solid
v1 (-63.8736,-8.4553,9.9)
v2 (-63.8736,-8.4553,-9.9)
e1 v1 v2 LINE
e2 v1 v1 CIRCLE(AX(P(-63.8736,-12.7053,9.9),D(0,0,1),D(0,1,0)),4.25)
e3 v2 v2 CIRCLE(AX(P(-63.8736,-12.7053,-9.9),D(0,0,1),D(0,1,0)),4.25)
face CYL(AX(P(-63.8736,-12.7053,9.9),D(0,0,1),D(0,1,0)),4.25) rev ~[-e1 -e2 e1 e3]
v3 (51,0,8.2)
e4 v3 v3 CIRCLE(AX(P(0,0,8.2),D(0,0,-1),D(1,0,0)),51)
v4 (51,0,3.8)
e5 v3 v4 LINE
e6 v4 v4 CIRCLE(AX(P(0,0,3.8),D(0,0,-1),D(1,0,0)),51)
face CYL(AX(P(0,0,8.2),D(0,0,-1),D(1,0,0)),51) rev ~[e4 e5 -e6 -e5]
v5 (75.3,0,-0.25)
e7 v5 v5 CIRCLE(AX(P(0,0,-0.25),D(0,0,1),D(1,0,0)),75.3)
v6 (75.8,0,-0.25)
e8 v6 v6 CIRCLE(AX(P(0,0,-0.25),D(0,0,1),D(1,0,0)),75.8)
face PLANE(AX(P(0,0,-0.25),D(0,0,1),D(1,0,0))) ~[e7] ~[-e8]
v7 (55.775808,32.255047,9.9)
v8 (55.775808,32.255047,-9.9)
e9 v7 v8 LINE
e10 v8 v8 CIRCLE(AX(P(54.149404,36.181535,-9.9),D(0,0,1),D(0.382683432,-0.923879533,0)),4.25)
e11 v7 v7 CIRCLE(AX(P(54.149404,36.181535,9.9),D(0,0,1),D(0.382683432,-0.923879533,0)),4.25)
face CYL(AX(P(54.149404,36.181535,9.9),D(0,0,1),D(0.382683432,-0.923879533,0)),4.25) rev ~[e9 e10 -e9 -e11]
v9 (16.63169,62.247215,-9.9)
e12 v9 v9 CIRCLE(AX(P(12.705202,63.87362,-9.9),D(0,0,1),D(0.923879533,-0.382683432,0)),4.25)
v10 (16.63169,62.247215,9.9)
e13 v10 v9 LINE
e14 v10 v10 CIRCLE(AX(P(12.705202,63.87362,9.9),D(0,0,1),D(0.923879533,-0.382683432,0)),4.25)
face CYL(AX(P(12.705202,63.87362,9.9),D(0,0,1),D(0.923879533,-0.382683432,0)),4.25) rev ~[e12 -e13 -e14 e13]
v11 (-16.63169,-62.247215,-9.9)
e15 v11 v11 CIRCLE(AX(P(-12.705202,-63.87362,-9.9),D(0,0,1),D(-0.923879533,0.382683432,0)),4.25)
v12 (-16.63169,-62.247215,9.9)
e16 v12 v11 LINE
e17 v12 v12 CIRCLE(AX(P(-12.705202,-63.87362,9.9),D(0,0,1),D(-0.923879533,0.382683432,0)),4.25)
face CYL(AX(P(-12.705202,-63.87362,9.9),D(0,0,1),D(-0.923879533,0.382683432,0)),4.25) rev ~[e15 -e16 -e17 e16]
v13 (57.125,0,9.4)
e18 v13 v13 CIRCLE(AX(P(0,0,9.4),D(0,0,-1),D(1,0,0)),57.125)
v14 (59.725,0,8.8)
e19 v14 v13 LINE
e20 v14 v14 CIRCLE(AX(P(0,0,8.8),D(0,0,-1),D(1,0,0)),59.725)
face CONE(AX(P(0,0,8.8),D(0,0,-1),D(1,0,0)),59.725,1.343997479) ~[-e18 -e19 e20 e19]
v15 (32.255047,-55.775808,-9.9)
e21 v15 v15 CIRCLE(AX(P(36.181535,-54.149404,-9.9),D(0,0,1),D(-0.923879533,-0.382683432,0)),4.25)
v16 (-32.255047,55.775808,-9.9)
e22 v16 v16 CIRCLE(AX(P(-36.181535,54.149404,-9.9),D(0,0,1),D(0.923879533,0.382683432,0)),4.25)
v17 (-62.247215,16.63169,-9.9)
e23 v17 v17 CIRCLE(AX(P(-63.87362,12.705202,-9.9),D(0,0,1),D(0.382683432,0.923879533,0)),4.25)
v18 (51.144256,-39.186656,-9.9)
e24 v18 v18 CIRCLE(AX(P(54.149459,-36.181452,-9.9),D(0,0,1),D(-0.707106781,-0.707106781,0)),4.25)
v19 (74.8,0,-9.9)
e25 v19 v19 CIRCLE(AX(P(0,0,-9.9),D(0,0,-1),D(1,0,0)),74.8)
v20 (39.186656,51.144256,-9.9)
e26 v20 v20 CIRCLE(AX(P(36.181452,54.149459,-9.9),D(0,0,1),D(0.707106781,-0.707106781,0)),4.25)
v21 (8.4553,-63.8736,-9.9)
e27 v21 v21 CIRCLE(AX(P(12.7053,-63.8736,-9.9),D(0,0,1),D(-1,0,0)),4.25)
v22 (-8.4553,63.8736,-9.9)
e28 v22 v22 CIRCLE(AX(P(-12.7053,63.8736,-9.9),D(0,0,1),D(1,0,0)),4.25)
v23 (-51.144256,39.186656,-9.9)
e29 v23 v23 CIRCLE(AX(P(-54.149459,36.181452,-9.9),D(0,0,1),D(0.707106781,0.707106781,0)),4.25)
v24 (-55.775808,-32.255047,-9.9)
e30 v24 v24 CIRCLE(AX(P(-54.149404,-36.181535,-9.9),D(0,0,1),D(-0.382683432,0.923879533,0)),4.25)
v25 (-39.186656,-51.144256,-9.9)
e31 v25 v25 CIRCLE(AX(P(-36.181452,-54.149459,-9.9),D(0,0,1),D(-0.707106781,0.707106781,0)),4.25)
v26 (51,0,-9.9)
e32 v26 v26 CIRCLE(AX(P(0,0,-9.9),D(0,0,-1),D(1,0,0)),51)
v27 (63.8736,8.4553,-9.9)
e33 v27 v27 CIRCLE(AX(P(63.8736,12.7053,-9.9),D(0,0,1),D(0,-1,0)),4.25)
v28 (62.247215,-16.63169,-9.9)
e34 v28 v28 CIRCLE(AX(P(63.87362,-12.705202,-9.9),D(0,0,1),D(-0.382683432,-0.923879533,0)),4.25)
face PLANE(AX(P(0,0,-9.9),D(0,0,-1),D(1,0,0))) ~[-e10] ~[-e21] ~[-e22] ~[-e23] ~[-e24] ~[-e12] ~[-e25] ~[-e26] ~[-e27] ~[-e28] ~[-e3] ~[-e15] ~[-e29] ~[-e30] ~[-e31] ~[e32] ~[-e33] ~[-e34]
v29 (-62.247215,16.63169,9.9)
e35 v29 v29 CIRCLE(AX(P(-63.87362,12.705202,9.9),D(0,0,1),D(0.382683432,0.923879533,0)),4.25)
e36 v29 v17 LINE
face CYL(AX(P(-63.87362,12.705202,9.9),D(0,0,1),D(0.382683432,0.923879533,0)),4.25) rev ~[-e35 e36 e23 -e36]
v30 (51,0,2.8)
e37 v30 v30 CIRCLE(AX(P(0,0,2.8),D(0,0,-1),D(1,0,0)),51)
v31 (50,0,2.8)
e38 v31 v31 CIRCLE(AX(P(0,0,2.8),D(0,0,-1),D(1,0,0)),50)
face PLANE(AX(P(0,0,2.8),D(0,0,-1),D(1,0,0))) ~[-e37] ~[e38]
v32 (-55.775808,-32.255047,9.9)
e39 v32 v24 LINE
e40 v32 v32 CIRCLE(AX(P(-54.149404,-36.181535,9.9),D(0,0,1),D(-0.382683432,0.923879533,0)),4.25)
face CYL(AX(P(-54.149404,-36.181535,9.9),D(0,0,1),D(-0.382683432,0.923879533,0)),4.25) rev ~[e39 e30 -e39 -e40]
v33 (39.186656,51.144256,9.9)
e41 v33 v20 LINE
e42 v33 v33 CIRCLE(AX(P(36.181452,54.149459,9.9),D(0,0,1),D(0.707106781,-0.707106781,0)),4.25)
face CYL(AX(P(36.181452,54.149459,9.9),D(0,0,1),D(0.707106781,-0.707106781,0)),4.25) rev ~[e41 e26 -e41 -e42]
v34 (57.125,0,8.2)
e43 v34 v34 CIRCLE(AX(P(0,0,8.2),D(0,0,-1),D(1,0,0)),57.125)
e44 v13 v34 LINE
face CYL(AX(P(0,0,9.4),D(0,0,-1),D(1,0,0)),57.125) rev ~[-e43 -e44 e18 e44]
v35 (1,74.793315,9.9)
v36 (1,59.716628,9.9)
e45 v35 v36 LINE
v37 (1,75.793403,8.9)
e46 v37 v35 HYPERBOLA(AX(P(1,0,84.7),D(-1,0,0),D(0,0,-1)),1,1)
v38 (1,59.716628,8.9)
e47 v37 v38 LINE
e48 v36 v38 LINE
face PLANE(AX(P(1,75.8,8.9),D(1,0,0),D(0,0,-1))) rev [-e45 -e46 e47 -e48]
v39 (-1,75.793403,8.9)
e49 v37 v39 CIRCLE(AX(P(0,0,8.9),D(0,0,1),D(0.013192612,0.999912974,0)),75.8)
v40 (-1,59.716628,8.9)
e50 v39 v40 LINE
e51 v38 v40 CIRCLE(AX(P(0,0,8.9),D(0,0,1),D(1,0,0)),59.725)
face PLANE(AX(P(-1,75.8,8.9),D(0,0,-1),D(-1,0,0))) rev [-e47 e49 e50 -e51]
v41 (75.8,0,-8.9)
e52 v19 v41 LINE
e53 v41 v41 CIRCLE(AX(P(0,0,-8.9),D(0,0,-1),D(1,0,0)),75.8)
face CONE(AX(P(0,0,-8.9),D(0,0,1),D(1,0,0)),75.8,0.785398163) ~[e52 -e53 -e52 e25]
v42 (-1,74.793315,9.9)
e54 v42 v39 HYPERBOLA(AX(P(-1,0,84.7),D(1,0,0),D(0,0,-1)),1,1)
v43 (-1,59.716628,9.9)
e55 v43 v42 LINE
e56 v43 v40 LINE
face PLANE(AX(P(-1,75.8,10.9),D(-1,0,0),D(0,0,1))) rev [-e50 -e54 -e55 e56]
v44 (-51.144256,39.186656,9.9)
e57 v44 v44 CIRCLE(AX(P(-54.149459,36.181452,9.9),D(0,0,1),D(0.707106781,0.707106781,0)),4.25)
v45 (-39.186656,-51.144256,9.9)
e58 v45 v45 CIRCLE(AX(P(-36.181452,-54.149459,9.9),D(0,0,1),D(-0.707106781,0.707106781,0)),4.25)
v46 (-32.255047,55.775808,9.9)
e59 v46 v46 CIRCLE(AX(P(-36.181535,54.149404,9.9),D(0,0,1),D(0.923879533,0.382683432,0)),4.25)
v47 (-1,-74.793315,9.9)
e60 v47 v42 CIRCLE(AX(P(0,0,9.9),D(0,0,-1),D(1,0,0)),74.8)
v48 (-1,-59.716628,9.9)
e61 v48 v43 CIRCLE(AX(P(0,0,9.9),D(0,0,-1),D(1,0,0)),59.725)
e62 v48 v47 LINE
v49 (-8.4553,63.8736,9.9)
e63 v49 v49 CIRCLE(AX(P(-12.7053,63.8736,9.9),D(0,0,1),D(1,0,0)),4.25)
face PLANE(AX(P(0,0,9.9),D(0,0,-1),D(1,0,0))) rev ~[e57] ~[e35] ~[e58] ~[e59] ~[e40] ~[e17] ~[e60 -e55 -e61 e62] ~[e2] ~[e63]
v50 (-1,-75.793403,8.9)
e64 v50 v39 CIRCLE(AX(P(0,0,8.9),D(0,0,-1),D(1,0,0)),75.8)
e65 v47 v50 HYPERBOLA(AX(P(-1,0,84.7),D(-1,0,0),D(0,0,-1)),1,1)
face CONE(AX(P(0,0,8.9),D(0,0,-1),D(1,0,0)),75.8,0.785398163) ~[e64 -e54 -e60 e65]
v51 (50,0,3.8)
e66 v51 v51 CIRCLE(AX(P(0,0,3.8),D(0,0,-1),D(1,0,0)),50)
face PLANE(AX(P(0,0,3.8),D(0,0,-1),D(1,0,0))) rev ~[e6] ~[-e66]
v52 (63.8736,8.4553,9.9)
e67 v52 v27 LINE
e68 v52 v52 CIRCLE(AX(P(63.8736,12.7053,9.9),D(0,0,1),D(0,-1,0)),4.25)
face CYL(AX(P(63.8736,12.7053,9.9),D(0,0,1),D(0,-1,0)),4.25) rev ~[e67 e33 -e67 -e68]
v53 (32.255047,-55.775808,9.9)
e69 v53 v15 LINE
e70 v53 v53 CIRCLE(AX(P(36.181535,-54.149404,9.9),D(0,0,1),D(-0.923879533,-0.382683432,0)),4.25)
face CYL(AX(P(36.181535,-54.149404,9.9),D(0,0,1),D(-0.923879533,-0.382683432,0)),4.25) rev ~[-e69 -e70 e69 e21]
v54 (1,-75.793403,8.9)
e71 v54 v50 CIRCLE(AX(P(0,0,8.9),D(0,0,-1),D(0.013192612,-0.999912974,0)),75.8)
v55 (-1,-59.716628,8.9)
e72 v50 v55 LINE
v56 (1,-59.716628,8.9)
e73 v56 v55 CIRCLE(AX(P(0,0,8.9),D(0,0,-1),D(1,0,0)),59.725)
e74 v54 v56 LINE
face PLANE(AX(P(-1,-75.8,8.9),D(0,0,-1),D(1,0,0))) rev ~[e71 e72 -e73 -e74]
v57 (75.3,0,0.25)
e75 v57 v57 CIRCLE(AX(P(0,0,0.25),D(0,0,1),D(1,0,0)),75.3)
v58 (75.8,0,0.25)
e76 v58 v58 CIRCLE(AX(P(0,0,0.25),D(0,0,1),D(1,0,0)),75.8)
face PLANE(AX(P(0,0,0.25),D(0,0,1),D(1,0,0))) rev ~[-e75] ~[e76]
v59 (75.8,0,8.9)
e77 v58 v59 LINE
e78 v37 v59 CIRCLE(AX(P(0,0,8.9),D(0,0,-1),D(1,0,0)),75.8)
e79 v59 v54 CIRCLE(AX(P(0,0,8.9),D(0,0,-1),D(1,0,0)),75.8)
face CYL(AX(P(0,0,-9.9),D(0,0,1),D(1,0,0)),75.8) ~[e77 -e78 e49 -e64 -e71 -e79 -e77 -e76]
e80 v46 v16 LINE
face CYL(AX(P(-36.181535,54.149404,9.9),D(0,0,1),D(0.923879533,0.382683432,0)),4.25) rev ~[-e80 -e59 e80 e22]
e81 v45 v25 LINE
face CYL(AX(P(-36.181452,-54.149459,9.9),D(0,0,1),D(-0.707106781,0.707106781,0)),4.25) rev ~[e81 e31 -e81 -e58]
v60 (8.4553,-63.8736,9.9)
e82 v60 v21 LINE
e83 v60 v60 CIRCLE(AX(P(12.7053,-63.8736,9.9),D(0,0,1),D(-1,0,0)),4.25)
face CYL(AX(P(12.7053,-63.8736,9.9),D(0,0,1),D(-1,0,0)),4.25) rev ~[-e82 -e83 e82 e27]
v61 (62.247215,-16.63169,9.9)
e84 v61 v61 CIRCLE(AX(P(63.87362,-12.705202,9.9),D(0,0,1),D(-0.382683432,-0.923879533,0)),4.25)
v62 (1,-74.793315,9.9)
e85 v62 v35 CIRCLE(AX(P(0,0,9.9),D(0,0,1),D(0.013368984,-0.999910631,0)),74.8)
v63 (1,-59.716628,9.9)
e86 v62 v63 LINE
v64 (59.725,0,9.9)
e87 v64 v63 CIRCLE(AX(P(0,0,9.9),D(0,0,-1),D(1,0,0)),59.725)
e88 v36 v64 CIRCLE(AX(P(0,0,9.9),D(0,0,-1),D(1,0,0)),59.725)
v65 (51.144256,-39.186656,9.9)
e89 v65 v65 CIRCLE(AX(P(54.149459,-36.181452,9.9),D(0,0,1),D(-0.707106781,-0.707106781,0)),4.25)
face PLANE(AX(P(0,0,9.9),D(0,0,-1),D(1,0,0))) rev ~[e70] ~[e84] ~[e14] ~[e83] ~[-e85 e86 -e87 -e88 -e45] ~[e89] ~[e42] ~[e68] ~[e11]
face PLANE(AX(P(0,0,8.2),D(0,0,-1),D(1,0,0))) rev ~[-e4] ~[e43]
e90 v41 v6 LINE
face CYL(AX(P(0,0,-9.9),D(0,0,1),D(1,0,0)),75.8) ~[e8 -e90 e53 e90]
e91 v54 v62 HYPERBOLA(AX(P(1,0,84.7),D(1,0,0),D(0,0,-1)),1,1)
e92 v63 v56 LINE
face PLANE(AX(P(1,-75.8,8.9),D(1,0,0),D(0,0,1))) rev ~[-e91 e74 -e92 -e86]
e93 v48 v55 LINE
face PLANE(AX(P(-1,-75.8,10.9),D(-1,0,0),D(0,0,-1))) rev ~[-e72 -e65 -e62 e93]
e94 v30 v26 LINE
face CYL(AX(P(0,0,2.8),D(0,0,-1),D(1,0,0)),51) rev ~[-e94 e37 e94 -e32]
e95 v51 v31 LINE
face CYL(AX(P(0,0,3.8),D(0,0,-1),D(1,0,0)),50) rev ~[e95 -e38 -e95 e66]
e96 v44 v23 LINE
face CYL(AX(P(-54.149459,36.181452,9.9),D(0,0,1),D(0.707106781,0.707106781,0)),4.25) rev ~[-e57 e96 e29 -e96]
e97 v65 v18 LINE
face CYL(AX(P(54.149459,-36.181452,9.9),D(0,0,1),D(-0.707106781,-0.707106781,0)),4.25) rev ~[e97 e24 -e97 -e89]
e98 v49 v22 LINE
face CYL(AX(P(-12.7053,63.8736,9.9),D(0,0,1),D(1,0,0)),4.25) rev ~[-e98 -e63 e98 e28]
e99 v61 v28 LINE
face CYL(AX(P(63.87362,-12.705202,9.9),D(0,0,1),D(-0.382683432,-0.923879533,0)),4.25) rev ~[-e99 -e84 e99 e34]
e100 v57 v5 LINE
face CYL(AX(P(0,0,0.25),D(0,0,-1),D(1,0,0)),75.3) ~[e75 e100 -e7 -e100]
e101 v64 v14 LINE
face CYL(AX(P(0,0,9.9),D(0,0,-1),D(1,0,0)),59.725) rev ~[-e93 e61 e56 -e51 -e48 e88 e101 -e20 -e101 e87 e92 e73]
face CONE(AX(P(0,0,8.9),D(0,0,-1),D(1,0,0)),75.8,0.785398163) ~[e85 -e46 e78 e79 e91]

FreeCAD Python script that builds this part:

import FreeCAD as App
import Part
import Sketcher


def edges_at(feature, points):
    """Names of the edges that pass closest to the given points."""
    edges = feature.Shape.Edges
    near = lambda p: min(range(len(edges)), key=lambda i: edges[i].distToShape(Part.Vertex(*p))[0])
    return sorted({f"Edge{near(p) + 1}" for p in points})

doc = App.newDocument("Part")
body = doc.addObject("PartDesign::Body", "Body")

# Sketch on XZ plane
sketch1 = doc.addObject("Sketcher::SketchObject", "Sketch")
body.addObject(sketch1)
sketch1.AttachmentSupport = (doc.XZ_Plane, [""])
sketch1.MapMode = "FlatFace"
sketch1.addGeometry(Part.LineSegment(App.Vector(75.8, -9.9, 0), App.Vector(51, -9.9, 0)), False)
sketch1.addGeometry(Part.LineSegment(App.Vector(51, -9.9, 0), App.Vector(51, 2.8, 0)), False)
sketch1.addGeometry(Part.LineSegment(App.Vector(51, 2.8, 0), App.Vector(50, 2.8, 0)), False)
sketch1.addGeometry(Part.LineSegment(App.Vector(50, 2.8, 0), App.Vector(50, 3.8, 0)), False)
sketch1.addGeometry(Part.LineSegment(App.Vector(50, 3.8, 0), App.Vector(51, 3.8, 0)), False)
sketch1.addGeometry(Part.LineSegment(App.Vector(51, 3.8, 0), App.Vector(51, 8.2, 0)), False)
sketch1.addGeometry(Part.LineSegment(App.Vector(51, 8.2, 0), App.Vector(57.1, 8.2, 0)), False)
sketch1.addGeometry(Part.LineSegment(App.Vector(57.1, 8.2, 0), App.Vector(57.1, 9.4, 0)), False)
sketch1.addGeometry(Part.LineSegment(App.Vector(57.1, 9.4, 0), App.Vector(59.7, 8.8, 0)), False)
sketch1.addGeometry(Part.LineSegment(App.Vector(59.7, 8.8, 0), App.Vector(59.7, 9.9, 0)), False)
sketch1.addGeometry(Part.LineSegment(App.Vector(59.7, 9.9, 0), App.Vector(75.8, 9.9, 0)), False)
sketch1.addGeometry(Part.LineSegment(App.Vector(75.8, 9.9, 0), App.Vector(75.8, -9.9, 0)), False)
sketch1.addConstraint(Sketcher.Constraint("Coincident", 0, 2, 1, 1))
sketch1.addConstraint(Sketcher.Constraint("Coincident", 1, 2, 2, 1))
sketch1.addConstraint(Sketcher.Constraint("Coincident", 2, 2, 3, 1))
sketch1.addConstraint(Sketcher.Constraint("Coincident", 3, 2, 4, 1))
sketch1.addConstraint(Sketcher.Constraint("Coincident", 4, 2, 5, 1))
sketch1.addConstraint(Sketcher.Constraint("Coincident", 5, 2, 6, 1))
sketch1.addConstraint(Sketcher.Constraint("Coincident", 6, 2, 7, 1))
sketch1.addConstraint(Sketcher.Constraint("Coincident", 7, 2, 8, 1))
sketch1.addConstraint(Sketcher.Constraint("Coincident", 8, 2, 9, 1))
sketch1.addConstraint(Sketcher.Constraint("Coincident", 9, 2, 10, 1))
sketch1.addConstraint(Sketcher.Constraint("Coincident", 10, 2, 11, 1))
sketch1.addConstraint(Sketcher.Constraint("Coincident", 11, 2, 0, 1))
sketch1.addConstraint(Sketcher.Constraint("Horizontal", 0))
sketch1.addConstraint(Sketcher.Constraint("Vertical", 1))
sketch1.addConstraint(Sketcher.Constraint("Horizontal", 2))
sketch1.addConstraint(Sketcher.Constraint("Vertical", 3))
sketch1.addConstraint(Sketcher.Constraint("Horizontal", 4))
sketch1.addConstraint(Sketcher.Constraint("Vertical", 5))
sketch1.addConstraint(Sketcher.Constraint("Horizontal", 6))
sketch1.addConstraint(Sketcher.Constraint("Vertical", 7))
sketch1.addConstraint(Sketcher.Constraint("Vertical", 9))
sketch1.addConstraint(Sketcher.Constraint("Horizontal", 10))
sketch1.addConstraint(Sketcher.Constraint("Vertical", 11))
sketch1.addConstraint(Sketcher.Constraint("Vertical", 1, 2, 4, 2))
sketch1.addConstraint(Sketcher.Constraint("Equal", 4, 3))
sketch1.addConstraint(Sketcher.Constraint("DistanceX", 2, 2, 2, 1, 1.0))
sketch1.addConstraint(Sketcher.Constraint("DistanceY", 9, 1, 9, 2, 1.1))
sketch1.addConstraint(Sketcher.Constraint("DistanceY", 11, 2, 11, 1, 19.8))
sketch1.addConstraint(Sketcher.Constraint("DistanceX", 7, 2, 8, 2, 2.6))
sketch1.addConstraint(Sketcher.Constraint("DistanceY", 7, 2, 9, 2, 0.5))
sketch1.addConstraint(Sketcher.Constraint("DistanceY", 6, 2, 9, 2, 1.7))
sketch1.addConstraint(Sketcher.Constraint("DistanceX", 0, 2, 0, 1, 24.8))
sketch1.addConstraint(Sketcher.Constraint("DistanceY", 1, 1, 1, 2, 12.7))
sketch1.addConstraint(Sketcher.Constraint("DistanceX", -1, 1, 0, 2, 51.0))
sketch1.addConstraint(Sketcher.Constraint("DistanceY", 0, 2, -1, 1, 9.9))
sketch1.addConstraint(Sketcher.Constraint("DistanceX", 6, 1, 6, 2, 6.125))
revolution = doc.addObject("PartDesign::Revolution", "Revolution")
body.addObject(revolution)
revolution.Profile = sketch1
revolution.ReferenceAxis = (sketch1, ["V_Axis"])
revolution.Angle = 360

# Sketch on XY plane
sketch2 = doc.addObject("Sketcher::SketchObject", "Sketch001")
body.addObject(sketch2)
sketch2.AttachmentSupport = (doc.XY_Plane, [""])
sketch2.MapMode = "FlatFace"
sketch2.AttachmentOffset = App.Placement(App.Vector(0, 0, 9.9), App.Rotation())
sketch2.addGeometry(Part.Circle(App.Vector(-12.7, 63.9, 0), App.Vector(0, 0, 1), 4.2), False)
sketch2.addConstraint(Sketcher.Constraint("Diameter", 0, 8.5))
sketch2.addConstraint(Sketcher.Constraint("DistanceX", 0, 3, -1, 1, 12.7053))
sketch2.addConstraint(Sketcher.Constraint("DistanceY", -1, 1, 0, 3, 63.8736))
pocket1 = doc.addObject("PartDesign::Pocket", "Pocket")
body.addObject(pocket1)
pocket1.Profile = sketch2
pocket1.Type = "ThroughAll"
doc.recompute()

polarpattern = doc.addObject("PartDesign::PolarPattern", "PolarPattern")
body.addObject(polarpattern)
polarpattern.Originals = [pocket1]
polarpattern.Axis = (doc.Z_Axis, [""])
polarpattern.Angle = 360
polarpattern.Occurrences = 16
body.Tip = polarpattern
doc.recompute()

chamfer = doc.addObject("PartDesign::Chamfer", "Chamfer")
body.addObject(chamfer)
chamfer.Base = (polarpattern, edges_at(polarpattern, [(-75.8, 0, 9.9), (-75.8, 0, -9.9)]))
chamfer.Size = 1

# Sketch on XZ plane
sketch3 = doc.addObject("Sketcher::SketchObject", "Sketch002")
body.addObject(sketch3)
sketch3.AttachmentSupport = (doc.XZ_Plane, [""])
sketch3.MapMode = "FlatFace"
sketch3.addGeometry(Part.LineSegment(App.Vector(75.3, 0.2, 0), App.Vector(76.3, 0.2, 0)), False)
sketch3.addGeometry(Part.LineSegment(App.Vector(76.3, 0.2, 0), App.Vector(76.3, -0.2, 0)), False)
sketch3.addGeometry(Part.LineSegment(App.Vector(76.3, -0.2, 0), App.Vector(75.3, -0.2, 0)), False)
sketch3.addGeometry(Part.LineSegment(App.Vector(75.3, -0.2, 0), App.Vector(75.3, 0.2, 0)), False)
sketch3.addConstraint(Sketcher.Constraint("Coincident", 0, 2, 1, 1))
sketch3.addConstraint(Sketcher.Constraint("Coincident", 1, 2, 2, 1))
sketch3.addConstraint(Sketcher.Constraint("Coincident", 2, 2, 3, 1))
sketch3.addConstraint(Sketcher.Constraint("Coincident", 3, 2, 0, 1))
sketch3.addConstraint(Sketcher.Constraint("Horizontal", 0))
sketch3.addConstraint(Sketcher.Constraint("Vertical", 1))
sketch3.addConstraint(Sketcher.Constraint("Horizontal", 2))
sketch3.addConstraint(Sketcher.Constraint("Vertical", 3))
sketch3.addConstraint(Sketcher.Constraint("DistanceX", 0, 1, 0, 2, 1.0))
sketch3.addConstraint(Sketcher.Constraint("DistanceY", 1, 2, 1, 1, 0.5))
sketch3.addConstraint(Sketcher.Constraint("DistanceX", -1, 1, 0, 2, 76.3))
sketch3.addConstraint(Sketcher.Constraint("DistanceY", -1, 1, 0, 2, 0.25))
groove = doc.addObject("PartDesign::Groove", "Groove")
body.addObject(groove)
groove.Profile = sketch3
groove.ReferenceAxis = (sketch3, ["V_Axis"])
groove.Angle = 360

# Sketch on XZ plane
sketch4 = doc.addObject("Sketcher::SketchObject", "Sketch003")
body.addObject(sketch4)
sketch4.AttachmentSupport = (doc.XZ_Plane, [""])
sketch4.MapMode = "FlatFace"
sketch4.AttachmentOffset = App.Placement(App.Vector(0, 0, 75.8), App.Rotation())
sketch4.addGeometry(Part.LineSegment(App.Vector(-1, 8.9, 0), App.Vector(-1, 10.9, 0)), False)
sketch4.addGeometry(Part.LineSegment(App.Vector(-1, 10.9, 0), App.Vector(1, 10.9, 0)), False)
sketch4.addGeometry(Part.LineSegment(App.Vector(1, 10.9, 0), App.Vector(1, 8.9, 0)), False)
sketch4.addGeometry(Part.LineSegment(App.Vector(1, 8.9, 0), App.Vector(-1, 8.9, 0)), False)
sketch4.addConstraint(Sketcher.Constraint("Coincident", 0, 2, 1, 1))
sketch4.addConstraint(Sketcher.Constraint("Coincident", 1, 2, 2, 1))
sketch4.addConstraint(Sketcher.Constraint("Coincident", 2, 2, 3, 1))
sketch4.addConstraint(Sketcher.Constraint("Coincident", 3, 2, 0, 1))
sketch4.addConstraint(Sketcher.Constraint("Vertical", 0))
sketch4.addConstraint(Sketcher.Constraint("Horizontal", 1))
sketch4.addConstraint(Sketcher.Constraint("Vertical", 2))
sketch4.addConstraint(Sketcher.Constraint("Horizontal", 3))
sketch4.addConstraint(Sketcher.Constraint("Equal", 3, 0))
sketch4.addConstraint(Sketcher.Constraint("DistanceX", 1, 1, 1, 2, 2.0))
sketch4.addConstraint(Sketcher.Constraint("DistanceX", 0, 2, -1, 1, 1.0))
sketch4.addConstraint(Sketcher.Constraint("DistanceY", -1, 1, 0, 2, 10.9))
pocket2 = doc.addObject("PartDesign::Pocket", "Pocket001")
body.addObject(pocket2)
pocket2.Profile = sketch4
pocket2.Length = 16.0834
doc.recompute()

mirrored = doc.addObject("PartDesign::Mirrored", "Mirrored")
body.addObject(mirrored)
mirrored.Originals = [pocket2]
mirrored.MirrorPlane = (doc.XZ_Plane, [""])
body.Tip = mirrored

doc.recompute()
